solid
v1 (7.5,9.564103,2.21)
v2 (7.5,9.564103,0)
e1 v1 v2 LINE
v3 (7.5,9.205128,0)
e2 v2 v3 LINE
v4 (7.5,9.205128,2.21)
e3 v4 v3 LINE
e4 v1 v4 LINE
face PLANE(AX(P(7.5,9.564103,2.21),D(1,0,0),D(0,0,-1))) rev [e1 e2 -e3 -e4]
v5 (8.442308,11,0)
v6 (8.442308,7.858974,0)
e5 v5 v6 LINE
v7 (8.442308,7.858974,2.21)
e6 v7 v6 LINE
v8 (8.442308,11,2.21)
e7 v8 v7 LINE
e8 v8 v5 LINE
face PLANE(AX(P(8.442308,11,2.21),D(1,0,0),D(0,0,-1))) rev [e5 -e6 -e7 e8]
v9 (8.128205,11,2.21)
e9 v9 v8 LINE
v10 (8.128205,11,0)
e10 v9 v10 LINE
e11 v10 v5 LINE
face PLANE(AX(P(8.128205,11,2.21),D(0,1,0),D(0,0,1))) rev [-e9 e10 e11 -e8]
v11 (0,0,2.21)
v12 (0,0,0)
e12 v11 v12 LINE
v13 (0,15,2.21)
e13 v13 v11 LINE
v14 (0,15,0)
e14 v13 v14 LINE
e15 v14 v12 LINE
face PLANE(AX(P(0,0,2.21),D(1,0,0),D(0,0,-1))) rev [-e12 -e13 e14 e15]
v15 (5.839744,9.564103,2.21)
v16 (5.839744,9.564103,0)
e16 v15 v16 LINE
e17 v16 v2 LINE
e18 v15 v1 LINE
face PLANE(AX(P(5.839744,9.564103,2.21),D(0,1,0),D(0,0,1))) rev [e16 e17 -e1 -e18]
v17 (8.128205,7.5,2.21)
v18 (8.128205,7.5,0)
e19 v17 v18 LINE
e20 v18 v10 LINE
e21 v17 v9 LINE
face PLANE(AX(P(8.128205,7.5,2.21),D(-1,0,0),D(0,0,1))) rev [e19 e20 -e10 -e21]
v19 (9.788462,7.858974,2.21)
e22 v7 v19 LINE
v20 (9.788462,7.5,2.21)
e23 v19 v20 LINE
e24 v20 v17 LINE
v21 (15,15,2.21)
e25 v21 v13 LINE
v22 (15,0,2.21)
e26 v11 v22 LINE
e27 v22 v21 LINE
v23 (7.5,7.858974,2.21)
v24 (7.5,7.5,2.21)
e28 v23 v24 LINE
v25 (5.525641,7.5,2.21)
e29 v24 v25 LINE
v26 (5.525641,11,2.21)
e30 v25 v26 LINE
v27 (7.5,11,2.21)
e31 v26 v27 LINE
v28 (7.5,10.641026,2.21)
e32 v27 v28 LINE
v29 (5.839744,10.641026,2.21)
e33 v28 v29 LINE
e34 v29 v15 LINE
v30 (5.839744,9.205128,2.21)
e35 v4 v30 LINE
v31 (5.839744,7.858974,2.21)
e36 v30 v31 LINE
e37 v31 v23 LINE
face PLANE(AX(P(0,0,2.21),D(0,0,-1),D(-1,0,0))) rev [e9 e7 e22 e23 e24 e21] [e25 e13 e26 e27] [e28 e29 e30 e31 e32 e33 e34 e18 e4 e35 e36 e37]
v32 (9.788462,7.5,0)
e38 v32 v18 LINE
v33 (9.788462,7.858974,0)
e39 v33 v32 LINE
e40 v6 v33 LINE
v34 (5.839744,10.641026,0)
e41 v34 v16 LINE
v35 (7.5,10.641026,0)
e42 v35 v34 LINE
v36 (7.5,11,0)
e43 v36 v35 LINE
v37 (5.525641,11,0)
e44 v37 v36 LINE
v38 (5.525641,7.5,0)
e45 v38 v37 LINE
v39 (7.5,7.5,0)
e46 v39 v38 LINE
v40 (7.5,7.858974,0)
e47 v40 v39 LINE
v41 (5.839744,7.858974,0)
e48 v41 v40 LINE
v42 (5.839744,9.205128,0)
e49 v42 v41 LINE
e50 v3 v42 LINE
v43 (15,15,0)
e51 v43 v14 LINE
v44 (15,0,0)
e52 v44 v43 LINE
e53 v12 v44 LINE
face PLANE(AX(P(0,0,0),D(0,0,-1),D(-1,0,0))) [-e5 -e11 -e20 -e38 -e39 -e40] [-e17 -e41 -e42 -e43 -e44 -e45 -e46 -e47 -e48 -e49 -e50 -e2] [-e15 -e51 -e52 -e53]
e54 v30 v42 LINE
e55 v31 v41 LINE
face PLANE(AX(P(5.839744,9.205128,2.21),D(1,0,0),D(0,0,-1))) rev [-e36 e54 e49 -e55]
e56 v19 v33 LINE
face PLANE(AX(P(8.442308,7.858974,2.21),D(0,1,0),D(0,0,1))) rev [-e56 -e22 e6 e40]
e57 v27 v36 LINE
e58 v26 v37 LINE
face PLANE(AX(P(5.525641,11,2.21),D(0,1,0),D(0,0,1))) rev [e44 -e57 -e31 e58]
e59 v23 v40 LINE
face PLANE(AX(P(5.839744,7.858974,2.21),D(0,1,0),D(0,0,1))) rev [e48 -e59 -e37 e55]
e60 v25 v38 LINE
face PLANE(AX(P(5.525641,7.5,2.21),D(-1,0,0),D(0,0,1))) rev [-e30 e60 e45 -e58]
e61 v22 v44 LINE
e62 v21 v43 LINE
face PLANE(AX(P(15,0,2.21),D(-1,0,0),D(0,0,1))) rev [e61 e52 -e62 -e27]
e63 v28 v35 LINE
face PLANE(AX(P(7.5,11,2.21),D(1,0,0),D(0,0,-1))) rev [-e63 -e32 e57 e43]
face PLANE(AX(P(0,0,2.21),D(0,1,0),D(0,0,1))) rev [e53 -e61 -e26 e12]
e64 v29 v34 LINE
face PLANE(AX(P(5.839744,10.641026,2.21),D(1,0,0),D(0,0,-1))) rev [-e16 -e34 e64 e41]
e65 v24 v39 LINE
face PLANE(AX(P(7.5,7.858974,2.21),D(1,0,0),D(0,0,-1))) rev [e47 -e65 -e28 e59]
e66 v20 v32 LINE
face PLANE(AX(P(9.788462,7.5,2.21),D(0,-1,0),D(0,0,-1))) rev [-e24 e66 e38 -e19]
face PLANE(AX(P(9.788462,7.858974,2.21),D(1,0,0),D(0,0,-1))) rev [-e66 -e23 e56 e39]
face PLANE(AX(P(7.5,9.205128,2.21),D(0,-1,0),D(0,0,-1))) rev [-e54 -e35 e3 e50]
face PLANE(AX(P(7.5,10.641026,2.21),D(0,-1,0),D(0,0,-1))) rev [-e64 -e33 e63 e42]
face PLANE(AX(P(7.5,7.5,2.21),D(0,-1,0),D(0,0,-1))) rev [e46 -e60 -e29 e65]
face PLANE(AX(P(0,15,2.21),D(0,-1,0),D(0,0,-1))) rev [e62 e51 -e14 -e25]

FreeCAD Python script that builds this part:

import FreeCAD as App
import Part
import Sketcher

doc = App.newDocument("Part")
body = doc.addObject("PartDesign::Body", "Body")

# Sketch on XY plane
sketch1 = body.newObject("Sketcher::SketchObject", "Sketch")
sketch1.AttachmentSupport = (doc.getObject("XY_Plane"), [""])
sketch1.MapMode = "FlatFace"
sketch1.addGeometry([
    Part.LineSegment(App.Vector(0, 15, 0), App.Vector(0, 0, 0)),  # 0
    Part.LineSegment(App.Vector(0, 0, 0), App.Vector(15, 0, 0)),  # 1
    Part.LineSegment(App.Vector(15, 0, 0), App.Vector(15, 15, 0)),  # 2
    Part.LineSegment(App.Vector(15, 15, 0), App.Vector(0, 15, 0)),  # 3
    Part.LineSegment(App.Vector(5.53, 7.5, 0), App.Vector(5.53, 11, 0)),  # 4
    Part.LineSegment(App.Vector(5.53, 11, 0), App.Vector(7.5, 11, 0)),  # 5
    Part.LineSegment(App.Vector(7.5, 11, 0), App.Vector(7.5, 10.64, 0)),  # 6
    Part.LineSegment(App.Vector(7.5, 10.64, 0), App.Vector(5.84, 10.64, 0)),  # 7
    Part.LineSegment(App.Vector(5.84, 10.64, 0), App.Vector(5.84, 9.56, 0)),  # 8
    Part.LineSegment(App.Vector(5.84, 9.56, 0), App.Vector(7.5, 9.56, 0)),  # 9
    Part.LineSegment(App.Vector(7.5, 9.56, 0), App.Vector(7.5, 9.21, 0)),  # 10
    Part.LineSegment(App.Vector(7.5, 9.21, 0), App.Vector(5.84, 9.21, 0)),  # 11
    Part.LineSegment(App.Vector(5.84, 9.21, 0), App.Vector(5.84, 7.86, 0)),  # 12
    Part.LineSegment(App.Vector(5.84, 7.86, 0), App.Vector(7.5, 7.86, 0)),  # 13
    Part.LineSegment(App.Vector(7.5, 7.86, 0), App.Vector(7.5, 7.5, 0)),  # 14
    Part.LineSegment(App.Vector(7.5, 7.5, 0), App.Vector(5.53, 7.5, 0)),  # 15
    Part.LineSegment(App.Vector(8.13, 7.5, 0), App.Vector(8.13, 11, 0)),  # 16
    Part.LineSegment(App.Vector(8.13, 11, 0), App.Vector(8.44, 11, 0)),  # 17
    Part.LineSegment(App.Vector(8.44, 11, 0), App.Vector(8.44, 7.86, 0)),  # 18
    Part.LineSegment(App.Vector(8.44, 7.86, 0), App.Vector(9.79, 7.86, 0)),  # 19
    Part.LineSegment(App.Vector(9.79, 7.86, 0), App.Vector(9.79, 7.5, 0)),  # 20
    Part.LineSegment(App.Vector(9.79, 7.5, 0), App.Vector(8.13, 7.5, 0)),  # 21
], False)
sketch1.addConstraint([
    Sketcher.Constraint("Coincident", 0, 2, 1, 1),
    Sketcher.Constraint("Coincident", 1, 2, 2, 1),
    Sketcher.Constraint("Coincident", 2, 2, 3, 1),
    Sketcher.Constraint("Coincident", 3, 2, 0, 1),
    Sketcher.Constraint("Coincident", 4, 2, 5, 1),
    Sketcher.Constraint("Coincident", 5, 2, 6, 1),
    Sketcher.Constraint("Coincident", 6, 2, 7, 1),
    Sketcher.Constraint("Coincident", 7, 2, 8, 1),
    Sketcher.Constraint("Coincident", 8, 2, 9, 1),
    Sketcher.Constraint("Coincident", 9, 2, 10, 1),
    Sketcher.Constraint("Coincident", 10, 2, 11, 1),
    Sketcher.Constraint("Coincident", 11, 2, 12, 1),
    Sketcher.Constraint("Coincident", 12, 2, 13, 1),
    Sketcher.Constraint("Coincident", 13, 2, 14, 1),
    Sketcher.Constraint("Coincident", 14, 2, 15, 1),
    Sketcher.Constraint("Coincident", 15, 2, 4, 1),
    Sketcher.Constraint("Coincident", 16, 2, 17, 1),
    Sketcher.Constraint("Coincident", 17, 2, 18, 1),
    Sketcher.Constraint("Coincident", 18, 2, 19, 1),
    Sketcher.Constraint("Coincident", 19, 2, 20, 1),
    Sketcher.Constraint("Coincident", 20, 2, 21, 1),
    Sketcher.Constraint("Coincident", 21, 2, 16, 1),
    Sketcher.Constraint("Vertical", 0),
    Sketcher.Constraint("Horizontal", 1),
    Sketcher.Constraint("Vertical", 2),
    Sketcher.Constraint("Horizontal", 3),
    Sketcher.Constraint("Vertical", 4),
    Sketcher.Constraint("Horizontal", 5),
    Sketcher.Constraint("Vertical", 6),
    Sketcher.Constraint("Horizontal", 7),
    Sketcher.Constraint("Vertical", 8),
    Sketcher.Constraint("Horizontal", 9),
    Sketcher.Constraint("Vertical", 10),
    Sketcher.Constraint("Horizontal", 11),
    Sketcher.Constraint("Vertical", 12),
    Sketcher.Constraint("Horizontal", 13),
    Sketcher.Constraint("Vertical", 14),
    Sketcher.Constraint("Horizontal", 15),
    Sketcher.Constraint("Vertical", 16),
    Sketcher.Constraint("Horizontal", 17),
    Sketcher.Constraint("Vertical", 18),
    Sketcher.Constraint("Horizontal", 19),
    Sketcher.Constraint("Vertical", 20),
    Sketcher.Constraint("Horizontal", 21),
    Sketcher.Constraint("Coincident", 0, 2, -1, 1),
    Sketcher.Constraint("Horizontal", 5, 2, 16, 2),
    Sketcher.Constraint("Horizontal", 13, 2, 18, 2),
    Sketcher.Constraint("Horizontal", 15, 2, 20, 2),
    Sketcher.Constraint("Vertical", 6, 2, 9, 2),
    Sketcher.Constraint("Vertical", 8, 2, 11, 2),
    Sketcher.Constraint("Vertical", 10, 2, 13, 2),
    Sketcher.Constraint("Equal", 13, 21),
    Sketcher.Constraint("Equal", 3, 0),
    Sketcher.Constraint("Equal", 6, 10),
    Sketcher.Constraint("Equal", 19, 12),
    Sketcher.Constraint("Equal", 10, 14),
    Sketcher.Constraint("DistanceX", 1, 1, 1, 2, 15.0),
    Sketcher.Constraint("DistanceY", 4, 1, 4, 2, 3.5),
    Sketcher.Constraint("DistanceY", -1, 1, 4, 2, 11.0),
    Sketcher.Constraint("DistanceX", -1, 1, 5, 2, 7.5),
    Sketcher.Constraint("DistanceX", 5, 1, 5, 2, 1.974359),
    Sketcher.Constraint("DistanceX", 7, 2, 7, 1, 1.660256),
    Sketcher.Constraint("DistanceX", 17, 1, 17, 2, 0.314103),
    Sketcher.Constraint("DistanceY", 6, 2, 6, 1, 0.358974),
    Sketcher.Constraint("DistanceX", -1, 1, 19, 2, 9.788462),
])
pad1 = body.newObject("PartDesign::Pad", "Pad")
pad1.Profile = sketch1
pad1.Length = 2.21

doc.recompute()
